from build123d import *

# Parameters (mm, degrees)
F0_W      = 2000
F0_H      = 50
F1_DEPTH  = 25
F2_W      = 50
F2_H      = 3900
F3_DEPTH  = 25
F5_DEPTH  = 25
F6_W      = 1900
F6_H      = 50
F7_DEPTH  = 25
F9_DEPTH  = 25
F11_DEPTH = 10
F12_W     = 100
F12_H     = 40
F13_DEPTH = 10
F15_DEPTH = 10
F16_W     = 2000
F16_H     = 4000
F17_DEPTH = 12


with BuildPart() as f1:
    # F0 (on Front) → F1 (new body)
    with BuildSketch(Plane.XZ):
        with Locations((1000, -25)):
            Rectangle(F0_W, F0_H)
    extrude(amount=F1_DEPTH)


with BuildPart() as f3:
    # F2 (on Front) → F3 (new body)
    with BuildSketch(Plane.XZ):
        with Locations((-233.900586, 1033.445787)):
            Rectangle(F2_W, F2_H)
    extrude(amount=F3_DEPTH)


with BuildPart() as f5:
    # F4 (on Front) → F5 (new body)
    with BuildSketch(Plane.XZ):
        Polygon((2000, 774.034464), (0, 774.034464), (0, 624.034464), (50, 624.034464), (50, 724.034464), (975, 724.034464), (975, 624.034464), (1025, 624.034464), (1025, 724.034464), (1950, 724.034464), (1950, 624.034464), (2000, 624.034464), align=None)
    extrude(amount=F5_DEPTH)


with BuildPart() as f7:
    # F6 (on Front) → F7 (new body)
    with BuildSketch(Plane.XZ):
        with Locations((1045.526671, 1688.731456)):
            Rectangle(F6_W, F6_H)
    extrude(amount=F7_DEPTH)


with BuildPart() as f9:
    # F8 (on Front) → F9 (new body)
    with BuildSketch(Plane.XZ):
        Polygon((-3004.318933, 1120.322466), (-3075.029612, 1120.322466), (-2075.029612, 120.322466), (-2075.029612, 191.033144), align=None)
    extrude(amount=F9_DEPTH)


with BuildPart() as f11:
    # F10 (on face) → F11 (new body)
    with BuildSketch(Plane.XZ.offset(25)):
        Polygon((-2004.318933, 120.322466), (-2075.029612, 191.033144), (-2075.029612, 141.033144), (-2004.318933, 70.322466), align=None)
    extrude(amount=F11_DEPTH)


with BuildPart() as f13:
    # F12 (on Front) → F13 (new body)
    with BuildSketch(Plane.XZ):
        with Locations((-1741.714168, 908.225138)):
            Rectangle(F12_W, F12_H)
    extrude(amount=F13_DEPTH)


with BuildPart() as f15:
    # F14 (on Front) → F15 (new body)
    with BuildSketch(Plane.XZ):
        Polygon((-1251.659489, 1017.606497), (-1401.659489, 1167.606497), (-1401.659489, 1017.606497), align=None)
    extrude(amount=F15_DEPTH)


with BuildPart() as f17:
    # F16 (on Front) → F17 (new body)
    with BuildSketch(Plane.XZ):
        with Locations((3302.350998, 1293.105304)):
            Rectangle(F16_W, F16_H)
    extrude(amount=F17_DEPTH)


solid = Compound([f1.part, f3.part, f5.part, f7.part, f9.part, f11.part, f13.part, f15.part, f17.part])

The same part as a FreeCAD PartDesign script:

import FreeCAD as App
import Part
import Sketcher
Q = App.Units.Quantity

doc = App.newDocument("Part")
params = doc.addObject("Spreadsheet::Sheet", "Params")
for row, (alias, value) in enumerate([
    ("sketch1_width", "2000 mm"),
    ("sketch1_height", "50 mm"),
    ("pad1_length", "25 mm"),
    ("sketch2_width", "50 mm"),
    ("sketch2_height", "3900 mm"),
    ("pad2_length", "25 mm"),
    ("sketch3_width", "2000 mm"),
    ("sketch3_width2", "50 mm"),
    ("sketch3_height", "150 mm"),
    ("sketch3_height2", "100 mm"),
    ("pad3_length", "25 mm"),
    ("sketch4_width", "1900 mm"),
    ("sketch4_height", "50 mm"),
    ("pad4_length", "25 mm"),
    ("pad5_length", "25 mm"),
    ("sketch6_height", "50 mm"),
    ("sketch6_length", "100.000001 mm"),
    ("pad6_length", "10 mm"),
    ("sketch7_width", "100 mm"),
    ("sketch7_height", "40 mm"),
    ("pad7_length", "10 mm"),
    ("sketch8_width", "150 mm"),
    ("pad8_length", "10 mm"),
    ("sketch9_width", "2000 mm"),
    ("sketch9_height", "4000 mm"),
    ("pad9_length", "12 mm"),
], start=1):
    params.set(f"A{row}", alias)
    params.set(f"B{row}", "=" + value)
    params.setAlias(f"B{row}", alias)

body = doc.addObject("PartDesign::Body", "Body")

sketch1 = body.newObject("Sketcher::SketchObject", "Sketch")
sketch1.AttachmentSupport = (doc.getObject("XZ_Plane"), [""])
sketch1.MapMode = "FlatFace"
sketch1.addGeometry(Part.LineSegment(App.Vector(0, 0, 0), App.Vector(0, -50, 0)), False)
sketch1.addGeometry(Part.LineSegment(App.Vector(0, -50, 0), App.Vector(2000, -50, 0)), False)
sketch1.addGeometry(Part.LineSegment(App.Vector(2000, -50, 0), App.Vector(2000, 0, 0)), False)
sketch1.addGeometry(Part.LineSegment(App.Vector(2000, 0, 0), App.Vector(0, 0, 0)), False)
sketch1.addConstraint(Sketcher.Constraint("Coincident", 0, 2, 1, 1))
sketch1.addConstraint(Sketcher.Constraint("Coincident", 1, 2, 2, 1))
sketch1.addConstraint(Sketcher.Constraint("Coincident", 2, 2, 3, 1))
sketch1.addConstraint(Sketcher.Constraint("Coincident", 3, 2, 0, 1))
sketch1.addConstraint(Sketcher.Constraint("Vertical", 0))
sketch1.addConstraint(Sketcher.Constraint("Horizontal", 1))
sketch1.addConstraint(Sketcher.Constraint("Vertical", 2))
sketch1.addConstraint(Sketcher.Constraint("Horizontal", 3))
sketch1.addConstraint(Sketcher.Constraint("Coincident", 3, 2, -1, 1))
sketch1.addConstraint(Sketcher.Constraint("DistanceX", 1, 1, 1, 2, Q("2000 mm")))
sketch1.addConstraint(Sketcher.Constraint("DistanceY", 0, 2, 0, 1, Q("50 mm")))
sketch1.setExpression("Constraints[9]", "Params.sketch1_width")
sketch1.setExpression("Constraints[10]", "Params.sketch1_height")
pad1 = body.newObject("PartDesign::Pad", "Pad")
pad1.Profile = sketch1
pad1.setExpression("Length", "Params.pad1_length")
body2 = doc.addObject("PartDesign::Body", "Body001")

sketch2 = body2.newObject("Sketcher::SketchObject", "Sketch001")
sketch2.AttachmentSupport = (doc.getObject("XZ_Plane001"), [""])
sketch2.MapMode = "FlatFace"
sketch2.addGeometry(Part.LineSegment(App.Vector(-258.900586, 2983.445787, 0), App.Vector(-258.900586, -916.554213, 0)), False)
sketch2.addGeometry(Part.LineSegment(App.Vector(-258.900586, -916.554213, 0), App.Vector(-208.900586, -916.554213, 0)), False)
sketch2.addGeometry(Part.LineSegment(App.Vector(-208.900586, -916.554213, 0), App.Vector(-208.900586, 2983.445787, 0)), False)
sketch2.addGeometry(Part.LineSegment(App.Vector(-208.900586, 2983.445787, 0), App.Vector(-258.900586, 2983.445787, 0)), False)
sketch2.addConstraint(Sketcher.Constraint("Coincident", 0, 2, 1, 1))
sketch2.addConstraint(Sketcher.Constraint("Coincident", 1, 2, 2, 1))
sketch2.addConstraint(Sketcher.Constraint("Coincident", 2, 2, 3, 1))
sketch2.addConstraint(Sketcher.Constraint("Coincident", 3, 2, 0, 1))
sketch2.addConstraint(Sketcher.Constraint("Vertical", 0))
sketch2.addConstraint(Sketcher.Constraint("Horizontal", 1))
sketch2.addConstraint(Sketcher.Constraint("Vertical", 2))
sketch2.addConstraint(Sketcher.Constraint("Horizontal", 3))
sketch2.addConstraint(Sketcher.Constraint("DistanceX", 1, 1, 1, 2, Q("50 mm")))
sketch2.addConstraint(Sketcher.Constraint("DistanceY", 0, 2, 0, 1, Q("3900 mm")))
sketch2.addConstraint(Sketcher.Constraint("DistanceX", 0, 2, -1, 1, Q("258.900586 mm")))
sketch2.addConstraint(Sketcher.Constraint("DistanceY", 0, 2, -1, 1, Q("916.554213 mm")))
sketch2.setExpression("Constraints[8]", "Params.sketch2_width")
sketch2.setExpression("Constraints[9]", "Params.sketch2_height")
pad2 = body2.newObject("PartDesign::Pad", "Pad001")
pad2.Profile = sketch2
pad2.setExpression("Length", "Params.pad2_length")
body3 = doc.addObject("PartDesign::Body", "Body002")

sketch3 = body3.newObject("Sketcher::SketchObject", "Sketch002")
sketch3.AttachmentSupport = (doc.getObject("XZ_Plane002"), [""])
sketch3.MapMode = "FlatFace"
sketch3.addGeometry(Part.LineSegment(App.Vector(2000, 774.034464, 0), App.Vector(0, 774.034464, 0)), False)
sketch3.addGeometry(Part.LineSegment(App.Vector(0, 774.034464, 0), App.Vector(0, 624.034464, 0)), False)
sketch3.addGeometry(Part.LineSegment(App.Vector(0, 624.034464, 0), App.Vector(50, 624.034464, 0)), False)
sketch3.addGeometry(Part.LineSegment(App.Vector(50, 624.034464, 0), App.Vector(50, 724.034464, 0)), False)
sketch3.addGeometry(Part.LineSegment(App.Vector(50, 724.034464, 0), App.Vector(975, 724.034464, 0)), False)
sketch3.addGeometry(Part.LineSegment(App.Vector(975, 724.034464, 0), App.Vector(975, 624.034464, 0)), False)
sketch3.addGeometry(Part.LineSegment(App.Vector(975, 624.034464, 0), App.Vector(1025, 624.034464, 0)), False)
sketch3.addGeometry(Part.LineSegment(App.Vector(1025, 624.034464, 0), App.Vector(1025, 724.034464, 0)), False)
sketch3.addGeometry(Part.LineSegment(App.Vector(1025, 724.034464, 0), App.Vector(1950, 724.034464, 0)), False)
sketch3.addGeometry(Part.LineSegment(App.Vector(1950, 724.034464, 0), App.Vector(1950, 624.034464, 0)), False)
sketch3.addGeometry(Part.LineSegment(App.Vector(1950, 624.034464, 0), App.Vector(2000, 624.034464, 0)), False)
sketch3.addGeometry(Part.LineSegment(App.Vector(2000, 624.034464, 0), App.Vector(2000, 774.034464, 0)), False)
sketch3.addConstraint(Sketcher.Constraint("Coincident", 0, 2, 1, 1))
sketch3.addConstraint(Sketcher.Constraint("Coincident", 1, 2, 2, 1))
sketch3.addConstraint(Sketcher.Constraint("Coincident", 2, 2, 3, 1))
sketch3.addConstraint(Sketcher.Constraint("Coincident", 3, 2, 4, 1))
sketch3.addConstraint(Sketcher.Constraint("Coincident", 4, 2, 5, 1))
sketch3.addConstraint(Sketcher.Constraint("Coincident", 5, 2, 6, 1))
sketch3.addConstraint(Sketcher.Constraint("Coincident", 6, 2, 7, 1))
sketch3.addConstraint(Sketcher.Constraint("Coincident", 7, 2, 8, 1))
sketch3.addConstraint(Sketcher.Constraint("Coincident", 8, 2, 9, 1))
sketch3.addConstraint(Sketcher.Constraint("Coincident", 9, 2, 10, 1))
sketch3.addConstraint(Sketcher.Constraint("Coincident", 10, 2, 11, 1))
sketch3.addConstraint(Sketcher.Constraint("Coincident", 11, 2, 0, 1))
sketch3.addConstraint(Sketcher.Constraint("Horizontal", 0))
sketch3.addConstraint(Sketcher.Constraint("Vertical", 1))
sketch3.addConstraint(Sketcher.Constraint("Horizontal", 2))
sketch3.addConstraint(Sketcher.Constraint("Vertical", 3))
sketch3.addConstraint(Sketcher.Constraint("Horizontal", 4))
sketch3.addConstraint(Sketcher.Constraint("Vertical", 5))
sketch3.addConstraint(Sketcher.Constraint("Horizontal", 6))
sketch3.addConstraint(Sketcher.Constraint("Vertical", 7))
sketch3.addConstraint(Sketcher.Constraint("Horizontal", 8))
sketch3.addConstraint(Sketcher.Constraint("Vertical", 9))
sketch3.addConstraint(Sketcher.Constraint("Horizontal", 10))
sketch3.addConstraint(Sketcher.Constraint("Vertical", 11))
sketch3.addConstraint(Sketcher.Constraint("PointOnObject", 0, 2, -2))
sketch3.addConstraint(Sketcher.Constraint("Horizontal", 2, 2, 5, 2))
sketch3.addConstraint(Sketcher.Constraint("Horizontal", 4, 2, 7, 2))
sketch3.addConstraint(Sketcher.Constraint("Horizontal", 6, 2, 9, 2))
sketch3.addConstraint(Sketcher.Constraint("Equal", 2, 6))
sketch3.addConstraint(Sketcher.Constraint("Equal", 4, 8))
sketch3.addConstraint(Sketcher.Constraint("Equal", 6, 10))
sketch3.addConstraint(Sketcher.Constraint("DistanceX", 0, 2, 0, 1, Q("2000 mm")))
sketch3.addConstraint(Sketcher.Constraint("DistanceX", 2, 1, 2, 2, Q("50 mm")))
sketch3.addConstraint(Sketcher.Constraint("DistanceY", 1, 2, 1, 1, Q("150 mm")))
sketch3.addConstraint(Sketcher.Constraint("DistanceY", 3, 1, 3, 2, Q("100 mm")))
sketch3.addConstraint(Sketcher.Constraint("DistanceY", -1, 1, 0, 2, Q("774.034464 mm")))
sketch3.setExpression("Constraints[31]", "Params.sketch3_width")
sketch3.setExpression("Constraints[32]", "Params.sketch3_width2")
sketch3.setExpression("Constraints[33]", "Params.sketch3_height")
sketch3.setExpression("Constraints[34]", "Params.sketch3_height2")
pad3 = body3.newObject("PartDesign::Pad", "Pad002")
pad3.Profile = sketch3
pad3.setExpression("Length", "Params.pad3_length")
body4 = doc.addObject("PartDesign::Body", "Body003")

sketch4 = body4.newObject("Sketcher::SketchObject", "Sketch003")
sketch4.AttachmentSupport = (doc.getObject("XZ_Plane003"), [""])
sketch4.MapMode = "FlatFace"
sketch4.addGeometry(Part.LineSegment(App.Vector(95.526671, 1713.731456, 0), App.Vector(95.526671, 1663.731456, 0)), False)
sketch4.addGeometry(Part.LineSegment(App.Vector(95.526671, 1663.731456, 0), App.Vector(1995.526671, 1663.731456, 0)), False)
sketch4.addGeometry(Part.LineSegment(App.Vector(1995.526671, 1663.731456, 0), App.Vector(1995.526671, 1713.731456, 0)), False)
sketch4.addGeometry(Part.LineSegment(App.Vector(1995.526671, 1713.731456, 0), App.Vector(95.526671, 1713.731456, 0)), False)
sketch4.addConstraint(Sketcher.Constraint("Coincident", 0, 2, 1, 1))
sketch4.addConstraint(Sketcher.Constraint("Coincident", 1, 2, 2, 1))
sketch4.addConstraint(Sketcher.Constraint("Coincident", 2, 2, 3, 1))
sketch4.addConstraint(Sketcher.Constraint("Coincident", 3, 2, 0, 1))
sketch4.addConstraint(Sketcher.Constraint("Vertical", 0))
sketch4.addConstraint(Sketcher.Constraint("Horizontal", 1))
sketch4.addConstraint(Sketcher.Constraint("Vertical", 2))
sketch4.addConstraint(Sketcher.Constraint("Horizontal", 3))
sketch4.addConstraint(Sketcher.Constraint("DistanceX", 1, 1, 1, 2, Q("1900 mm")))
sketch4.addConstraint(Sketcher.Constraint("DistanceY", 0, 2, 0, 1, Q("50 mm")))
sketch4.addConstraint(Sketcher.Constraint("DistanceX", -1, 1, 0, 2, Q("95.526671 mm")))
sketch4.addConstraint(Sketcher.Constraint("DistanceY", -1, 1, 0, 2, Q("1663.731456 mm")))
sketch4.setExpression("Constraints[8]", "Params.sketch4_width")
sketch4.setExpression("Constraints[9]", "Params.sketch4_height")
pad4 = body4.newObject("PartDesign::Pad", "Pad003")
pad4.Profile = sketch4
pad4.setExpression("Length", "Params.pad4_length")
body5 = doc.addObject("PartDesign::Body", "Body004")

sketch5 = body5.newObject("Sketcher::SketchObject", "Sketch004")
sketch5.AttachmentSupport = (doc.getObject("XZ_Plane004"), [""])
sketch5.MapMode = "FlatFace"
sketch5.addGeometry(Part.LineSegment(App.Vector(-3004.318933, 1120.322466, 0), App.Vector(-3075.029612, 1120.322466, 0)), False)
sketch5.addGeometry(Part.LineSegment(App.Vector(-3075.029612, 1120.322466, 0), App.Vector(-2075.029612, 120.322466, 0)), False)
sketch5.addGeometry(Part.LineSegment(App.Vector(-2075.029612, 120.322466, 0), App.Vector(-2075.029612, 191.033144, 0)), False)
sketch5.addGeometry(Part.LineSegment(App.Vector(-2075.029612, 191.033144, 0), App.Vector(-3004.318933, 1120.322466, 0)), False)
sketch5.addConstraint(Sketcher.Constraint("Coincident", 0, 2, 1, 1))
sketch5.addConstraint(Sketcher.Constraint("Coincident", 1, 2, 2, 1))
sketch5.addConstraint(Sketcher.Constraint("Coincident", 2, 2, 3, 1))
sketch5.addConstraint(Sketcher.Constraint("Coincident", 3, 2, 0, 1))
sketch5.addConstraint(Sketcher.Constraint("Horizontal", 0))
sketch5.addConstraint(Sketcher.Constraint("Vertical", 2))
sketch5.addConstraint(Sketcher.Constraint("Parallel", 1, 3))
sketch5.addConstraint(Sketcher.Constraint("Equal", 0, 2))
sketch5.addConstraint(Sketcher.Constraint("DistanceX", 0, 2, 1, 2, Q("1000 mm")))
sketch5.addConstraint(Sketcher.Constraint("DistanceX", 0, 2, 0, 1, Q("70.710679 mm")))
sketch5.addConstraint(Sketcher.Constraint("DistanceX", 0, 2, -1, 1, Q("3075.029612 mm")))
sketch5.addConstraint(Sketcher.Constraint("DistanceY", -1, 1, 0, 2, Q("1120.322466 mm")))
pad5 = body5.newObject("PartDesign::Pad", "Pad004")
pad5.Profile = sketch5
pad5.setExpression("Length", "Params.pad5_length")
body6 = doc.addObject("PartDesign::Body", "Body005")

sketch6 = body6.newObject("Sketcher::SketchObject", "Sketch005")
sketch6.AttachmentSupport = (doc.getObject("XZ_Plane005"), [""])
sketch6.MapMode = "FlatFace"
sketch6.AttachmentOffset = App.Placement(App.Vector(0, 0, 25), App.Rotation())
sketch6.addGeometry(Part.LineSegment(App.Vector(-2004.318933, 120.322466, 0), App.Vector(-2075.029612, 191.033144, 0)), False)
sketch6.addGeometry(Part.LineSegment(App.Vector(-2075.029612, 191.033144, 0), App.Vector(-2075.029612, 141.033144, 0)), False)
sketch6.addGeometry(Part.LineSegment(App.Vector(-2075.029612, 141.033144, 0), App.Vector(-2004.318933, 70.322466, 0)), False)
sketch6.addGeometry(Part.LineSegment(App.Vector(-2004.318933, 70.322466, 0), App.Vector(-2004.318933, 120.322466, 0)), False)
sketch6.addConstraint(Sketcher.Constraint("Coincident", 0, 2, 1, 1))
sketch6.addConstraint(Sketcher.Constraint("Coincident", 1, 2, 2, 1))
sketch6.addConstraint(Sketcher.Constraint("Coincident", 2, 2, 3, 1))
sketch6.addConstraint(Sketcher.Constraint("Coincident", 3, 2, 0, 1))
sketch6.addConstraint(Sketcher.Constraint("Vertical", 1))
sketch6.addConstraint(Sketcher.Constraint("Vertical", 3))
sketch6.addConstraint(Sketcher.Constraint("Parallel", 0, 2))
sketch6.addConstraint(Sketcher.Constraint("DistanceY", 1, 2, 1, 1, Q("50 mm")))
sketch6.addConstraint(Sketcher.Constraint("Angle", 0, Q("135 deg")))
sketch6.addConstraint(Sketcher.Constraint("Distance", 0, Q("100.000001 mm")))
sketch6.addConstraint(Sketcher.Constraint("DistanceX", 0, 2, -1, 1, Q("2075.029612 mm")))
sketch6.addConstraint(Sketcher.Constraint("DistanceY", -1, 1, 0, 2, Q("191.033144 mm")))
sketch6.setExpression("Constraints[7]", "Params.sketch6_height")
sketch6.setExpression("Constraints[9]", "Params.sketch6_length")
pad6 = body6.newObject("PartDesign::Pad", "Pad005")
pad6.Profile = sketch6
pad6.setExpression("Length", "Params.pad6_length")
body7 = doc.addObject("PartDesign::Body", "Body006")

sketch7 = body7.newObject("Sketcher::SketchObject", "Sketch006")
sketch7.AttachmentSupport = (doc.getObject("XZ_Plane006"), [""])
sketch7.MapMode = "FlatFace"
sketch7.addGeometry(Part.LineSegment(App.Vector(-1791.714168, 928.225138, 0), App.Vector(-1791.714168, 888.225138, 0)), False)
sketch7.addGeometry(Part.LineSegment(App.Vector(-1791.714168, 888.225138, 0), App.Vector(-1691.714168, 888.225138, 0)), False)
sketch7.addGeometry(Part.LineSegment(App.Vector(-1691.714168, 888.225138, 0), App.Vector(-1691.714168, 928.225138, 0)), False)
sketch7.addGeometry(Part.LineSegment(App.Vector(-1691.714168, 928.225138, 0), App.Vector(-1791.714168, 928.225138, 0)), False)
sketch7.addConstraint(Sketcher.Constraint("Coincident", 0, 2, 1, 1))
sketch7.addConstraint(Sketcher.Constraint("Coincident", 1, 2, 2, 1))
sketch7.addConstraint(Sketcher.Constraint("Coincident", 2, 2, 3, 1))
sketch7.addConstraint(Sketcher.Constraint("Coincident", 3, 2, 0, 1))
sketch7.addConstraint(Sketcher.Constraint("Vertical", 0))
sketch7.addConstraint(Sketcher.Constraint("Horizontal", 1))
sketch7.addConstraint(Sketcher.Constraint("Vertical", 2))
sketch7.addConstraint(Sketcher.Constraint("Horizontal", 3))
sketch7.addConstraint(Sketcher.Constraint("DistanceX", 1, 1, 1, 2, Q("100 mm")))
sketch7.addConstraint(Sketcher.Constraint("DistanceY", 0, 2, 0, 1, Q("40 mm")))
sketch7.addConstraint(Sketcher.Constraint("DistanceX", 0, 2, -1, 1, Q("1791.714168 mm")))
sketch7.addConstraint(Sketcher.Constraint("DistanceY", -1, 1, 0, 2, Q("888.225138 mm")))
sketch7.setExpression("Constraints[8]", "Params.sketch7_width")
sketch7.setExpression("Constraints[9]", "Params.sketch7_height")
pad7 = body7.newObject("PartDesign::Pad", "Pad006")
pad7.Profile = sketch7
pad7.setExpression("Length", "Params.pad7_length")
body8 = doc.addObject("PartDesign::Body", "Body007")

sketch8 = body8.newObject("Sketcher::SketchObject", "Sketch007")
sketch8.AttachmentSupport = (doc.getObject("XZ_Plane007"), [""])
sketch8.MapMode = "FlatFace"
sketch8.addGeometry(Part.LineSegment(App.Vector(-1251.659489, 1017.606497, 0), App.Vector(-1401.659489, 1167.606497, 0)), False)
sketch8.addGeometry(Part.LineSegment(App.Vector(-1401.659489, 1167.606497, 0), App.Vector(-1401.659489, 1017.606497, 0)), False)
sketch8.addGeometry(Part.LineSegment(App.Vector(-1401.659489, 1017.606497, 0), App.Vector(-1251.659489, 1017.606497, 0)), False)
sketch8.addConstraint(Sketcher.Constraint("Coincident", 0, 2, 1, 1))
sketch8.addConstraint(Sketcher.Constraint("Coincident", 1, 2, 2, 1))
sketch8.addConstraint(Sketcher.Constraint("Coincident", 2, 2, 0, 1))
sketch8.addConstraint(Sketcher.Constraint("Vertical", 1))
sketch8.addConstraint(Sketcher.Constraint("Horizontal", 2))
sketch8.addConstraint(Sketcher.Constraint("Equal", 2, 1))
sketch8.addConstraint(Sketcher.Constraint("DistanceX", 2, 1, 2, 2, Q("150 mm")))
sketch8.addConstraint(Sketcher.Constraint("DistanceX", 0, 2, -1, 1, Q("1401.659489 mm")))
sketch8.addConstraint(Sketcher.Constraint("DistanceY", -1, 1, 0, 2, Q("1167.606497 mm")))
sketch8.setExpression("Constraints[6]", "Params.sketch8_width")
pad8 = body8.newObject("PartDesign::Pad", "Pad007")
pad8.Profile = sketch8
pad8.setExpression("Length", "Params.pad8_length")
body9 = doc.addObject("PartDesign::Body", "Body008")

sketch9 = body9.newObject("Sketcher::SketchObject", "Sketch008")
sketch9.AttachmentSupport = (doc.getObject("XZ_Plane008"), [""])
sketch9.MapMode = "FlatFace"
sketch9.addGeometry(Part.LineSegment(App.Vector(2302.350998, 3293.105304, 0), App.Vector(2302.350998, -706.894696, 0)), False)
sketch9.addGeometry(Part.LineSegment(App.Vector(2302.350998, -706.894696, 0), App.Vector(4302.350998, -706.894696, 0)), False)
sketch9.addGeometry(Part.LineSegment(App.Vector(4302.350998, -706.894696, 0), App.Vector(4302.350998, 3293.105304, 0)), False)
sketch9.addGeometry(Part.LineSegment(App.Vector(4302.350998, 3293.105304, 0), App.Vector(2302.350998, 3293.105304, 0)), False)
sketch9.addConstraint(Sketcher.Constraint("Coincident", 0, 2, 1, 1))
sketch9.addConstraint(Sketcher.Constraint("Coincident", 1, 2, 2, 1))
sketch9.addConstraint(Sketcher.Constraint("Coincident", 2, 2, 3, 1))
sketch9.addConstraint(Sketcher.Constraint("Coincident", 3, 2, 0, 1))
sketch9.addConstraint(Sketcher.Constraint("Vertical", 0))
sketch9.addConstraint(Sketcher.Constraint("Horizontal", 1))
sketch9.addConstraint(Sketcher.Constraint("Vertical", 2))
sketch9.addConstraint(Sketcher.Constraint("Horizontal", 3))
sketch9.addConstraint(Sketcher.Constraint("DistanceX", 1, 1, 1, 2, Q("2000 mm")))
sketch9.addConstraint(Sketcher.Constraint("DistanceY", 0, 2, 0, 1, Q("4000 mm")))
sketch9.addConstraint(Sketcher.Constraint("DistanceX", -1, 1, 1, 2, Q("4302.350998 mm")))
sketch9.addConstraint(Sketcher.Constraint("DistanceY", 0, 2, -1, 1, Q("706.894696 mm")))
sketch9.setExpression("Constraints[8]", "Params.sketch9_width")
sketch9.setExpression("Constraints[9]", "Params.sketch9_height")
pad9 = body9.newObject("PartDesign::Pad", "Pad008")
pad9.Profile = sketch9
pad9.setExpression("Length", "Params.pad9_length")

doc.recompute()
